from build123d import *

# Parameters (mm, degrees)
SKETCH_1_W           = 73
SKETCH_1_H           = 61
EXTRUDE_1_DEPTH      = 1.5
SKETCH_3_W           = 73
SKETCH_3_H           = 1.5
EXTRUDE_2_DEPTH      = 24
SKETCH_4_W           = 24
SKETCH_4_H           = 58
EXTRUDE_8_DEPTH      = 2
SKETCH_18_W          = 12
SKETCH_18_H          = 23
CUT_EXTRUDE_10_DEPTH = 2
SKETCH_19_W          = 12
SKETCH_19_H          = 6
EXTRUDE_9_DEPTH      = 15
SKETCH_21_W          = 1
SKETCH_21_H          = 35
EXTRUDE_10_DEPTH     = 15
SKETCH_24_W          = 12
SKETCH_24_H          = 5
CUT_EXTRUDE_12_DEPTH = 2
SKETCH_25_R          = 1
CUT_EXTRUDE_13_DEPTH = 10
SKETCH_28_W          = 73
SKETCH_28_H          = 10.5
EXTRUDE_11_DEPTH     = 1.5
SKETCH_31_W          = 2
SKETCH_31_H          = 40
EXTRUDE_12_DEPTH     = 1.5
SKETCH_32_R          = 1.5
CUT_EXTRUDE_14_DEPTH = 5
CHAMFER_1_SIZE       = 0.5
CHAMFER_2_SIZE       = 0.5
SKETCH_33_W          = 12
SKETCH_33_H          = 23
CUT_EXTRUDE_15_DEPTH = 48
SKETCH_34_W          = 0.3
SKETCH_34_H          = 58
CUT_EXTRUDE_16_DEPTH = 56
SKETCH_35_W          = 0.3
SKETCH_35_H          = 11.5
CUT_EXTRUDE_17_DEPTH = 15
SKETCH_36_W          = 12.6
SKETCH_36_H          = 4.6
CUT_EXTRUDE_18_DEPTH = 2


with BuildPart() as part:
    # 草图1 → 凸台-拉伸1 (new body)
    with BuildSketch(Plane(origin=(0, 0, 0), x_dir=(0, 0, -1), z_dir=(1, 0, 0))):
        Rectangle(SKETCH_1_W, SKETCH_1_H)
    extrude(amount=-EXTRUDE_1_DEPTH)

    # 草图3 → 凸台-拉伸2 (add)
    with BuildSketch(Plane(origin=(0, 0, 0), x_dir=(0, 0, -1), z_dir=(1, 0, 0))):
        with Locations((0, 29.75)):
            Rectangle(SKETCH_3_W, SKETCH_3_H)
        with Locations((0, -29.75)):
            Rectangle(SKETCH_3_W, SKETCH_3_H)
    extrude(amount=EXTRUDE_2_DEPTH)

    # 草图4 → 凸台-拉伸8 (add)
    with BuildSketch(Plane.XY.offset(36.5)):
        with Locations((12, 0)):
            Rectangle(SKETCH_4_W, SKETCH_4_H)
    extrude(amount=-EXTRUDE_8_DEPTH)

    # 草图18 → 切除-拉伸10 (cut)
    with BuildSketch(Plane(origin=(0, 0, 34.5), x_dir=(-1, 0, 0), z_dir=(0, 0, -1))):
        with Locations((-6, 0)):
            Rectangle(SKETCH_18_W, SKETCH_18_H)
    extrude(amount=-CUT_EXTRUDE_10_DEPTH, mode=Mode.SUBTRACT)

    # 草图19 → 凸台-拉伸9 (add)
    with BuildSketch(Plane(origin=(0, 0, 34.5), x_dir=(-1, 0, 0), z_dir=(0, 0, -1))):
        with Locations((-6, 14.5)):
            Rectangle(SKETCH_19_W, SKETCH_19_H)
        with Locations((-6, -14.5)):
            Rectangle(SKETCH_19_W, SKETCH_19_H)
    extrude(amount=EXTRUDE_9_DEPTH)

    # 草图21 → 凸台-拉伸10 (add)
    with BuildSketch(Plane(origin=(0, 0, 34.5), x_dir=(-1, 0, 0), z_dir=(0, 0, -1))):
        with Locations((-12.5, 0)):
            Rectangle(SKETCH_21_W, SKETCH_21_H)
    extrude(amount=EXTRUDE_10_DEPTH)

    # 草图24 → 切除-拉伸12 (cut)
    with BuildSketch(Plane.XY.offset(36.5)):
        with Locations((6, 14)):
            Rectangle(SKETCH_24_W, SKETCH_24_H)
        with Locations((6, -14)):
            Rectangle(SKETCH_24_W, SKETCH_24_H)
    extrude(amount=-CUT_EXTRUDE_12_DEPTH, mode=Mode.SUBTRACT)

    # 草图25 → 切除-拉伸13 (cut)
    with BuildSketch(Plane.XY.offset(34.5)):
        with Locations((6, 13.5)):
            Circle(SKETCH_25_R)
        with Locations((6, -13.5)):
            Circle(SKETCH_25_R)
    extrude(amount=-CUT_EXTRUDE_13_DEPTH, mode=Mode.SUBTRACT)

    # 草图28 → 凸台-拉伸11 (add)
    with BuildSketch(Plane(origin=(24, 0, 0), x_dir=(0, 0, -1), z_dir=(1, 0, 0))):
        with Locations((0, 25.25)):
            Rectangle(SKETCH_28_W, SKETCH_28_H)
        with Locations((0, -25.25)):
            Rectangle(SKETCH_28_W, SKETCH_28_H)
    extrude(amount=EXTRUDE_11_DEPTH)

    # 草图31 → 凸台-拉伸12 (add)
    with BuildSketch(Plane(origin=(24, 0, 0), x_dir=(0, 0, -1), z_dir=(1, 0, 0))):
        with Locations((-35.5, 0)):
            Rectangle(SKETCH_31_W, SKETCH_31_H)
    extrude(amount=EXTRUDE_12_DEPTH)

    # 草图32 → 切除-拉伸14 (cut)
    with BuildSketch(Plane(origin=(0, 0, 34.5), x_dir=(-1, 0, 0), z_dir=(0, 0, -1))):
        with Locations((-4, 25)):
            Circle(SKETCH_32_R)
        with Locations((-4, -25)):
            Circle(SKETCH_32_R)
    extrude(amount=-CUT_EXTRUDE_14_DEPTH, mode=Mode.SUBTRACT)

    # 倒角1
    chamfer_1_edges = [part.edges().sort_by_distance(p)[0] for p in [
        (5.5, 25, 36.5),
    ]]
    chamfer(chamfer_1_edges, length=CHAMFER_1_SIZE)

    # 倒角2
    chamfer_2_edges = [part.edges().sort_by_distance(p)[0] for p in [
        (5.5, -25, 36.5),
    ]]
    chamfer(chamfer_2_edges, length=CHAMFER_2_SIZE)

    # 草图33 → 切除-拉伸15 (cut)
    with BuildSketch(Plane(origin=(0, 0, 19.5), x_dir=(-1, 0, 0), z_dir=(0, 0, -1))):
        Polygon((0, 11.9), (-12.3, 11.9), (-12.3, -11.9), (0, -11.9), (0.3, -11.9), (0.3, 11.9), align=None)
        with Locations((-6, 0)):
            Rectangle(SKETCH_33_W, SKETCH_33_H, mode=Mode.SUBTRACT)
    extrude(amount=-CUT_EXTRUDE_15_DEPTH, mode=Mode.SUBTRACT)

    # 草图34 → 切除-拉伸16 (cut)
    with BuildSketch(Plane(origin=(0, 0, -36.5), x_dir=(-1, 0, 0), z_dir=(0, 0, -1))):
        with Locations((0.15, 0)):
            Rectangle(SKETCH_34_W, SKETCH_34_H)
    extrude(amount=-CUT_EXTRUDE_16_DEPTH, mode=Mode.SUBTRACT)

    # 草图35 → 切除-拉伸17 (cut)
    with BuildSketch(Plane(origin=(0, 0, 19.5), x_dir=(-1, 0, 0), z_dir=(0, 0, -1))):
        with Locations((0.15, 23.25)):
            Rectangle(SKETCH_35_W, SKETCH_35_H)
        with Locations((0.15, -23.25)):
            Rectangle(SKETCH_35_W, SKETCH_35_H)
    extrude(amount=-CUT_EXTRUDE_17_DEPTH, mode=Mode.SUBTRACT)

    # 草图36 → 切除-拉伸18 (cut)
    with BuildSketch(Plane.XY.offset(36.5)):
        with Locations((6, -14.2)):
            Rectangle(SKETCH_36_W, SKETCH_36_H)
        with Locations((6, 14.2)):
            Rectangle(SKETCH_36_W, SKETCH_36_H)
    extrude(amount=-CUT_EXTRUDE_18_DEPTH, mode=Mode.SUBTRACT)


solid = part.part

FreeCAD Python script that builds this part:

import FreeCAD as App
import Part
import Sketcher
Q = App.Units.Quantity


def edges_at(feature, points):
    """Names of the edges that pass closest to the given points."""
    edges = feature.Shape.Edges
    near = lambda p: min(range(len(edges)), key=lambda i: edges[i].distToShape(Part.Vertex(*p))[0])
    return sorted({f"Edge{near(p) + 1}" for p in points})


def add_polygon(sketch, points):
    """Adds a closed chain of lines whose ends are joined by coincident constraints."""
    first, n = sketch.GeometryCount, len(points)
    for a, b in zip(points, points[1:] + points[:1]):
        sketch.addGeometry(Part.LineSegment(App.Vector(*a, 0), App.Vector(*b, 0)), False)
    for i in range(n):
        sketch.addConstraint(Sketcher.Constraint("Coincident", first + i, 2, first + (i + 1) % n, 1))

doc = App.newDocument("Part")
body = doc.addObject("PartDesign::Body", "Body")

# Sketch on YZ plane
sketch1 = doc.addObject("Sketcher::SketchObject", "Sketch")
body.addObject(sketch1)
sketch1.AttachmentSupport = (doc.YZ_Plane, [""])
sketch1.MapMode = "FlatFace"
add_polygon(sketch1, [(30, 36), (-30, 36), (-30, -36), (30, -36)])  # lines 0-3
sketch1.addConstraint(Sketcher.Constraint("Horizontal", 0))
sketch1.addConstraint(Sketcher.Constraint("Vertical", 1))
sketch1.addConstraint(Sketcher.Constraint("Horizontal", 2))
sketch1.addConstraint(Sketcher.Constraint("Vertical", 3))
sketch1.addConstraint(Sketcher.Constraint("Symmetric", 0, 2, 2, 2, -1, 1))
sketch1.addConstraint(Sketcher.Constraint("DistanceX", 0, 2, 0, 1, Q("61 mm")))
sketch1.addConstraint(Sketcher.Constraint("DistanceY", 1, 2, 1, 1, Q("73 mm")))
pad1 = doc.addObject("PartDesign::Pad", "Pad")
body.addObject(pad1)
pad1.Profile = sketch1
pad1.Length = 1.5
pad1.Reversed = True

# Sketch on YZ plane
sketch2 = doc.addObject("Sketcher::SketchObject", "Sketch001")
body.addObject(sketch2)
sketch2.AttachmentSupport = (doc.YZ_Plane, [""])
sketch2.MapMode = "FlatFace"
add_polygon(sketch2, [(30.5, 36.5), (29, 36.5), (29, -36.5), (30.5, -36.5)])  # lines 0-3
add_polygon(sketch2, [(-29, 36.5), (-30.5, 36.5), (-30.5, -36.5), (-29, -36.5)])  # lines 4-7
sketch2.addConstraint(Sketcher.Constraint("Horizontal", 0))
sketch2.addConstraint(Sketcher.Constraint("Vertical", 1))
sketch2.addConstraint(Sketcher.Constraint("Horizontal", 2))
sketch2.addConstraint(Sketcher.Constraint("Vertical", 3))
sketch2.addConstraint(Sketcher.Constraint("Horizontal", 4))
sketch2.addConstraint(Sketcher.Constraint("Vertical", 5))
sketch2.addConstraint(Sketcher.Constraint("Horizontal", 6))
sketch2.addConstraint(Sketcher.Constraint("Vertical", 7))
sketch2.addConstraint(Sketcher.Constraint("Symmetric", 2, 2, 4, 2, -1, 1))
sketch2.addConstraint(Sketcher.Constraint("Symmetric", 0, 2, 6, 2, -1, 1))
sketch2.addConstraint(Sketcher.Constraint("Horizontal", 3, 2, 4, 2))
sketch2.addConstraint(Sketcher.Constraint("DistanceY", 1, 2, 1, 1, Q("73 mm")))
sketch2.addConstraint(Sketcher.Constraint("DistanceX", 0, 2, 0, 1, Q("1.5 mm")))
sketch2.addConstraint(Sketcher.Constraint("DistanceX", -1, 1, 0, 2, Q("29 mm")))
pad2 = doc.addObject("PartDesign::Pad", "Pad001")
body.addObject(pad2)
pad2.Profile = sketch2
pad2.Length = 24

# Sketch on XY plane
sketch3 = doc.addObject("Sketcher::SketchObject", "Sketch002")
body.addObject(sketch3)
sketch3.AttachmentSupport = (doc.XY_Plane, [""])
sketch3.MapMode = "FlatFace"
sketch3.AttachmentOffset = App.Placement(App.Vector(0, 0, 36.5), App.Rotation())
add_polygon(sketch3, [(0, 29), (0, -29), (24, -29), (24, 29)])  # lines 0-3
sketch3.addConstraint(Sketcher.Constraint("Vertical", 0))
sketch3.addConstraint(Sketcher.Constraint("Horizontal", 1))
sketch3.addConstraint(Sketcher.Constraint("Vertical", 2))
sketch3.addConstraint(Sketcher.Constraint("Horizontal", 3))
sketch3.addConstraint(Sketcher.Constraint("Symmetric", 0, 2, 3, 2, -1, 1))
sketch3.addConstraint(Sketcher.Constraint("DistanceX", 1, 1, 1, 2, Q("24 mm")))
sketch3.addConstraint(Sketcher.Constraint("DistanceY", 0, 2, 0, 1, Q("58 mm")))
pad3 = doc.addObject("PartDesign::Pad", "Pad002")
body.addObject(pad3)
pad3.Profile = sketch3
pad3.Length = 2
pad3.Reversed = True

# Sketch on XY plane
sketch4 = doc.addObject("Sketcher::SketchObject", "Sketch003")
body.addObject(sketch4)
sketch4.AttachmentSupport = (doc.XY_Plane, [""])
sketch4.MapMode = "FlatFace"
sketch4.AttachmentOffset = App.Placement(App.Vector(0, 0, 34.5), App.Rotation())
add_polygon(sketch4, [(12, 12), (12, -12), (0, -12), (0, 12)])  # lines 0-3
sketch4.addConstraint(Sketcher.Constraint("Vertical", 0))
sketch4.addConstraint(Sketcher.Constraint("Horizontal", 1))
sketch4.addConstraint(Sketcher.Constraint("Vertical", 2))
sketch4.addConstraint(Sketcher.Constraint("Horizontal", 3))
sketch4.addConstraint(Sketcher.Constraint("Symmetric", 1, 2, 2, 2, -1, 1))
sketch4.addConstraint(Sketcher.Constraint("DistanceX", 1, 2, 1, 1, Q("12 mm")))
sketch4.addConstraint(Sketcher.Constraint("DistanceY", 0, 2, 0, 1, Q("23 mm")))
pocket1 = doc.addObject("PartDesign::Pocket", "Pocket")
body.addObject(pocket1)
pocket1.Profile = sketch4
pocket1.Length = 2
pocket1.Reversed = True

# Sketch on XY plane
sketch5 = doc.addObject("Sketcher::SketchObject", "Sketch004")
body.addObject(sketch5)
sketch5.AttachmentSupport = (doc.XY_Plane, [""])
sketch5.MapMode = "FlatFace"
sketch5.AttachmentOffset = App.Placement(App.Vector(0, 0, 34.5), App.Rotation())
add_polygon(sketch5, [(12, 18), (12, 12), (0, 12), (0, 18)])  # lines 0-3
add_polygon(sketch5, [(12, -12), (12, -18), (0, -18), (0, -12)])  # lines 4-7
sketch5.addConstraint(Sketcher.Constraint("Vertical", 0))
sketch5.addConstraint(Sketcher.Constraint("Horizontal", 1))
sketch5.addConstraint(Sketcher.Constraint("Vertical", 2))
sketch5.addConstraint(Sketcher.Constraint("Horizontal", 3))
sketch5.addConstraint(Sketcher.Constraint("Vertical", 4))
sketch5.addConstraint(Sketcher.Constraint("Horizontal", 5))
sketch5.addConstraint(Sketcher.Constraint("Vertical", 6))
sketch5.addConstraint(Sketcher.Constraint("Horizontal", 7))
sketch5.addConstraint(Sketcher.Constraint("Symmetric", 2, 2, 5, 2, -1, 1))
sketch5.addConstraint(Sketcher.Constraint("Symmetric", 1, 2, 6, 2, -1))
sketch5.addConstraint(Sketcher.Constraint("Vertical", 3, 2, 4, 2))
sketch5.addConstraint(Sketcher.Constraint("DistanceX", 1, 2, 1, 1, Q("12 mm")))
sketch5.addConstraint(Sketcher.Constraint("DistanceY", 0, 2, 0, 1, Q("6 mm")))
sketch5.addConstraint(Sketcher.Constraint("DistanceY", 4, 2, 0, 2, Q("29 mm")))
pad4 = doc.addObject("PartDesign::Pad", "Pad003")
body.addObject(pad4)
pad4.Profile = sketch5
pad4.Length = 15
pad4.Reversed = True

# Sketch on XY plane
sketch6 = doc.addObject("Sketcher::SketchObject", "Sketch005")
body.addObject(sketch6)
sketch6.AttachmentSupport = (doc.XY_Plane, [""])
sketch6.MapMode = "FlatFace"
sketch6.AttachmentOffset = App.Placement(App.Vector(0, 0, 34.5), App.Rotation())
add_polygon(sketch6, [(13, 17.5), (13, -17.5), (12, -17.5), (12, 17.5)])  # lines 0-3
sketch6.addConstraint(Sketcher.Constraint("Vertical", 0))
sketch6.addConstraint(Sketcher.Constraint("Horizontal", 1))
sketch6.addConstraint(Sketcher.Constraint("Vertical", 2))
sketch6.addConstraint(Sketcher.Constraint("Horizontal", 3))
sketch6.addConstraint(Sketcher.Constraint("DistanceX", 1, 2, 1, 1, Q("1 mm")))
sketch6.addConstraint(Sketcher.Constraint("DistanceY", 0, 2, 0, 1, Q("35 mm")))
sketch6.addConstraint(Sketcher.Constraint("DistanceX", -1, 1, 0, 2, Q("13 mm")))
sketch6.addConstraint(Sketcher.Constraint("DistanceY", 0, 2, -1, 1, Q("17.5 mm")))
pad5 = doc.addObject("PartDesign::Pad", "Pad004")
body.addObject(pad5)
pad5.Profile = sketch6
pad5.Length = 15
pad5.Reversed = True

# Sketch on XY plane
sketch7 = doc.addObject("Sketcher::SketchObject", "Sketch006")
body.addObject(sketch7)
sketch7.AttachmentSupport = (doc.XY_Plane, [""])
sketch7.MapMode = "FlatFace"
sketch7.AttachmentOffset = App.Placement(App.Vector(0, 0, 36.5), App.Rotation())
add_polygon(sketch7, [(0, 16), (0, 12), (12, 12), (12, 16)])  # lines 0-3
add_polygon(sketch7, [(0, -12), (0, -16), (12, -16), (12, -12)])  # lines 4-7
sketch7.addConstraint(Sketcher.Constraint("Vertical", 0))
sketch7.addConstraint(Sketcher.Constraint("Horizontal", 1))
sketch7.addConstraint(Sketcher.Constraint("Vertical", 2))
sketch7.addConstraint(Sketcher.Constraint("Horizontal", 3))
sketch7.addConstraint(Sketcher.Constraint("Vertical", 4))
sketch7.addConstraint(Sketcher.Constraint("Horizontal", 5))
sketch7.addConstraint(Sketcher.Constraint("Vertical", 6))
sketch7.addConstraint(Sketcher.Constraint("Horizontal", 7))
sketch7.addConstraint(Sketcher.Constraint("Symmetric", 3, 2, 4, 2, -1, 1))
sketch7.addConstraint(Sketcher.Constraint("Symmetric", 1, 2, 6, 2, -1))
sketch7.addConstraint(Sketcher.Constraint("PointOnObject", 0, 2, -2))
sketch7.addConstraint(Sketcher.Constraint("DistanceX", 1, 1, 1, 2, Q("12 mm")))
sketch7.addConstraint(Sketcher.Constraint("DistanceY", 0, 2, 0, 1, Q("5 mm")))
sketch7.addConstraint(Sketcher.Constraint("DistanceY", 4, 2, 0, 2, Q("28 mm")))
pocket2 = doc.addObject("PartDesign::Pocket", "Pocket001")
body.addObject(pocket2)
pocket2.Profile = sketch7
pocket2.Length = 2

# Sketch on XY plane
sketch8 = doc.addObject("Sketcher::SketchObject", "Sketch007")
body.addObject(sketch8)
sketch8.AttachmentSupport = (doc.XY_Plane, [""])
sketch8.MapMode = "FlatFace"
sketch8.AttachmentOffset = App.Placement(App.Vector(0, 0, 34.5), App.Rotation())
sketch8.addGeometry(Part.Circle(App.Vector(6, 13.5, 0), App.Vector(0, 0, 1), 1), False)
sketch8.addGeometry(Part.Circle(App.Vector(6, -13.5, 0), App.Vector(0, 0, 1), 1), False)
sketch8.addConstraint(Sketcher.Constraint("Equal", 0, 1))
sketch8.addConstraint(Sketcher.Constraint("Symmetric", 0, 3, 1, 3, -1))
sketch8.addConstraint(Sketcher.Constraint("Diameter", 0, Q("2 mm")))
sketch8.addConstraint(Sketcher.Constraint("DistanceX", -1, 1, 0, 3, Q("6 mm")))
sketch8.addConstraint(Sketcher.Constraint("DistanceY", 1, 3, 0, 3, Q("27 mm")))
pocket3 = doc.addObject("PartDesign::Pocket", "Pocket002")
body.addObject(pocket3)
pocket3.Profile = sketch8
pocket3.Length = 10

# Sketch on YZ plane
sketch9 = doc.addObject("Sketcher::SketchObject", "Sketch008")
body.addObject(sketch9)
sketch9.AttachmentSupport = (doc.YZ_Plane, [""])
sketch9.MapMode = "FlatFace"
sketch9.AttachmentOffset = App.Placement(App.Vector(0, 0, 24), App.Rotation())
add_polygon(sketch9, [(30, 36), (20, 36), (20, -36), (30, -36)])  # lines 0-3
add_polygon(sketch9, [(-20, 36), (-30, 36), (-30, -36), (-20, -36)])  # lines 4-7
sketch9.addConstraint(Sketcher.Constraint("Horizontal", 0))
sketch9.addConstraint(Sketcher.Constraint("Vertical", 1))
sketch9.addConstraint(Sketcher.Constraint("Horizontal", 2))
sketch9.addConstraint(Sketcher.Constraint("Vertical", 3))
sketch9.addConstraint(Sketcher.Constraint("Horizontal", 4))
sketch9.addConstraint(Sketcher.Constraint("Vertical", 5))
sketch9.addConstraint(Sketcher.Constraint("Horizontal", 6))
sketch9.addConstraint(Sketcher.Constraint("Vertical", 7))
sketch9.addConstraint(Sketcher.Constraint("Symmetric", 2, 2, 4, 2, -1, 1))
sketch9.addConstraint(Sketcher.Constraint("Symmetric", 0, 2, 6, 2, -1, 1))
sketch9.addConstraint(Sketcher.Constraint("Horizontal", 3, 2, 4, 2))
sketch9.addConstraint(Sketcher.Constraint("DistanceY", 1, 2, 1, 1, Q("73 mm")))
sketch9.addConstraint(Sketcher.Constraint("DistanceX", 0, 2, 0, 1, Q("10.5 mm")))
sketch9.addConstraint(Sketcher.Constraint("DistanceX", -1, 1, 0, 2, Q("20 mm")))
pad6 = doc.addObject("PartDesign::Pad", "Pad005")
body.addObject(pad6)
pad6.Profile = sketch9
pad6.Length = 1.5

# Sketch on YZ plane
sketch10 = doc.addObject("Sketcher::SketchObject", "Sketch009")
body.addObject(sketch10)
sketch10.AttachmentSupport = (doc.YZ_Plane, [""])
sketch10.MapMode = "FlatFace"
sketch10.AttachmentOffset = App.Placement(App.Vector(0, 0, 24), App.Rotation())
add_polygon(sketch10, [(20, 36.5), (-20, 36.5), (-20, 34.5), (20, 34.5)])  # lines 0-3
sketch10.addConstraint(Sketcher.Constraint("Horizontal", 0))
sketch10.addConstraint(Sketcher.Constraint("Vertical", 1))
sketch10.addConstraint(Sketcher.Constraint("Horizontal", 2))
sketch10.addConstraint(Sketcher.Constraint("Vertical", 3))
sketch10.addConstraint(Sketcher.Constraint("DistanceX", 0, 2, 0, 1, Q("40 mm")))
sketch10.addConstraint(Sketcher.Constraint("DistanceY", 1, 2, 1, 1, Q("2 mm")))
sketch10.addConstraint(Sketcher.Constraint("DistanceX", 0, 2, -1, 1, Q("20 mm")))
sketch10.addConstraint(Sketcher.Constraint("DistanceY", -1, 1, 0, 2, Q("36.5 mm")))
pad7 = doc.addObject("PartDesign::Pad", "Pad006")
body.addObject(pad7)
pad7.Profile = sketch10
pad7.Length = 1.5

# Sketch on XY plane
sketch11 = doc.addObject("Sketcher::SketchObject", "Sketch010")
body.addObject(sketch11)
sketch11.AttachmentSupport = (doc.XY_Plane, [""])
sketch11.MapMode = "FlatFace"
sketch11.AttachmentOffset = App.Placement(App.Vector(0, 0, 34.5), App.Rotation())
sketch11.addGeometry(Part.Circle(App.Vector(4, 25, 0), App.Vector(0, 0, 1), 1.5), False)
sketch11.addGeometry(Part.Circle(App.Vector(4, -25, 0), App.Vector(0, 0, 1), 1.5), False)
sketch11.addConstraint(Sketcher.Constraint("Equal", 0, 1))
sketch11.addConstraint(Sketcher.Constraint("Symmetric", 0, 3, 1, 3, -1))
sketch11.addConstraint(Sketcher.Constraint("Diameter", 0, Q("3 mm")))
sketch11.addConstraint(Sketcher.Constraint("DistanceX", -1, 1, 0, 3, Q("4 mm")))
sketch11.addConstraint(Sketcher.Constraint("DistanceY", -1, 1, 0, 3, Q("25 mm")))
pocket4 = doc.addObject("PartDesign::Pocket", "Pocket003")
body.addObject(pocket4)
pocket4.Profile = sketch11
pocket4.Length = 5
pocket4.Reversed = True
doc.recompute()

chamfer = doc.addObject("PartDesign::Chamfer", "Chamfer")
body.addObject(chamfer)
chamfer.Base = (pocket4, edges_at(pocket4, [(5.5, 25, 36.5)]))
chamfer.Size = 0.5
doc.recompute()

chamfer2 = doc.addObject("PartDesign::Chamfer", "Chamfer001")
body.addObject(chamfer2)
chamfer2.Base = (chamfer, edges_at(chamfer, [(5.5, -25, 36.5)]))
chamfer2.Size = 0.5

# Sketch on XY plane
sketch12 = doc.addObject("Sketcher::SketchObject", "Sketch011")
body.addObject(sketch12)
sketch12.AttachmentSupport = (doc.XY_Plane, [""])
sketch12.MapMode = "FlatFace"
sketch12.AttachmentOffset = App.Placement(App.Vector(0, 0, 19.5), App.Rotation())
add_polygon(sketch12, [(12, 12), (12, -12), (0, -12), (0, 12)])  # lines 0-3
add_polygon(sketch12, [(0, -12), (12, -12), (12, 12), (0, 12)])  # lines 4-7
sketch12.addConstraint(Sketcher.Constraint("Vertical", 0))
sketch12.addConstraint(Sketcher.Constraint("Horizontal", 1))
sketch12.addConstraint(Sketcher.Constraint("Vertical", 2))
sketch12.addConstraint(Sketcher.Constraint("Horizontal", 3))
sketch12.addConstraint(Sketcher.Constraint("Horizontal", 4))
sketch12.addConstraint(Sketcher.Constraint("Vertical", 5))
sketch12.addConstraint(Sketcher.Constraint("Horizontal", 6))
sketch12.addConstraint(Sketcher.Constraint("Vertical", 7))
sketch12.addConstraint(Sketcher.Constraint("Symmetric", 6, 2, 7, 2, -1, 1))
sketch12.addConstraint(Sketcher.Constraint("DistanceX", 4, 1, 4, 2, Q("12 mm")))
sketch12.addConstraint(Sketcher.Constraint("DistanceY", 5, 1, 5, 2, Q("23 mm")))
sketch12.addConstraint(Sketcher.Constraint("DistanceX", 1, 2, 1, 1, Q("12.6 mm")))
sketch12.addConstraint(Sketcher.Constraint("DistanceY", 0, 2, 0, 1, Q("23.8 mm")))
sketch12.addConstraint(Sketcher.Constraint("DistanceX", -1, 1, 0, 2, Q("12.3 mm")))
sketch12.addConstraint(Sketcher.Constraint("DistanceY", 0, 2, -1, 1, Q("11.9 mm")))
pocket5 = doc.addObject("PartDesign::Pocket", "Pocket004")
body.addObject(pocket5)
pocket5.Profile = sketch12
pocket5.Length = 48
pocket5.Reversed = True

# Sketch on XY plane
sketch13 = doc.addObject("Sketcher::SketchObject", "Sketch012")
body.addObject(sketch13)
sketch13.AttachmentSupport = (doc.XY_Plane, [""])
sketch13.MapMode = "FlatFace"
sketch13.AttachmentOffset = App.Placement(App.Vector(0, 0, -36.5), App.Rotation())
add_polygon(sketch13, [(0, 29), (0, -29), (-0.3, -29), (-0.3, 29)])  # lines 0-3
sketch13.addConstraint(Sketcher.Constraint("Vertical", 0))
sketch13.addConstraint(Sketcher.Constraint("Horizontal", 1))
sketch13.addConstraint(Sketcher.Constraint("Vertical", 2))
sketch13.addConstraint(Sketcher.Constraint("Horizontal", 3))
sketch13.addConstraint(Sketcher.Constraint("Symmetric", 0, 2, 3, 2, -1, 1))
sketch13.addConstraint(Sketcher.Constraint("DistanceY", 0, 2, 0, 1, Q("58 mm")))
sketch13.addConstraint(Sketcher.Constraint("DistanceX", 1, 2, 1, 1, Q("0.3 mm")))
pocket6 = doc.addObject("PartDesign::Pocket", "Pocket005")
body.addObject(pocket6)
pocket6.Profile = sketch13
pocket6.Length = 56
pocket6.Reversed = True

# Sketch on XY plane
sketch14 = doc.addObject("Sketcher::SketchObject", "Sketch013")
body.addObject(sketch14)
sketch14.AttachmentSupport = (doc.XY_Plane, [""])
sketch14.MapMode = "FlatFace"
sketch14.AttachmentOffset = App.Placement(App.Vector(0, 0, 19.5), App.Rotation())
add_polygon(sketch14, [(0, 29), (0, 17.5), (-0.3, 17.5), (-0.3, 29)])  # lines 0-3
add_polygon(sketch14, [(0, -17.5), (0, -29), (-0.3, -29), (-0.3, -17.5)])  # lines 4-7
sketch14.addConstraint(Sketcher.Constraint("Vertical", 0))
sketch14.addConstraint(Sketcher.Constraint("Horizontal", 1))
sketch14.addConstraint(Sketcher.Constraint("Vertical", 2))
sketch14.addConstraint(Sketcher.Constraint("Horizontal", 3))
sketch14.addConstraint(Sketcher.Constraint("Vertical", 4))
sketch14.addConstraint(Sketcher.Constraint("Horizontal", 5))
sketch14.addConstraint(Sketcher.Constraint("Vertical", 6))
sketch14.addConstraint(Sketcher.Constraint("Horizontal", 7))
sketch14.addConstraint(Sketcher.Constraint("Symmetric", 3, 2, 4, 2, -1, 1))
sketch14.addConstraint(Sketcher.Constraint("Symmetric", 1, 2, 6, 2, -1))
sketch14.addConstraint(Sketcher.Constraint("PointOnObject", 0, 2, -2))
sketch14.addConstraint(Sketcher.Constraint("DistanceX", 1, 2, 1, 1, Q("0.3 mm")))
sketch14.addConstraint(Sketcher.Constraint("DistanceY", 0, 2, 0, 1, Q("11.5 mm")))
sketch14.addConstraint(Sketcher.Constraint("DistanceY", -1, 1, 2, 2, Q("29 mm")))
pocket7 = doc.addObject("PartDesign::Pocket", "Pocket006")
body.addObject(pocket7)
pocket7.Profile = sketch14
pocket7.Length = 15
pocket7.Reversed = True

# Sketch on XY plane
sketch15 = doc.addObject("Sketcher::SketchObject", "Sketch014")
body.addObject(sketch15)
sketch15.AttachmentSupport = (doc.XY_Plane, [""])
sketch15.MapMode = "FlatFace"
sketch15.AttachmentOffset = App.Placement(App.Vector(0, 0, 36.5), App.Rotation())
add_polygon(sketch15, [(-0.3, -11.9), (-0.3, -16.5), (12.3, -16.5), (12.3, -11.9)])  # lines 0-3
add_polygon(sketch15, [(-0.3, 16.5), (-0.3, 11.9), (12.3, 11.9), (12.3, 16.5)])  # lines 4-7
sketch15.addConstraint(Sketcher.Constraint("Vertical", 0))
sketch15.addConstraint(Sketcher.Constraint("Horizontal", 1))
sketch15.addConstraint(Sketcher.Constraint("Vertical", 2))
sketch15.addConstraint(Sketcher.Constraint("Horizontal", 3))
sketch15.addConstraint(Sketcher.Constraint("Vertical", 4))
sketch15.addConstraint(Sketcher.Constraint("Horizontal", 5))
sketch15.addConstraint(Sketcher.Constraint("Vertical", 6))
sketch15.addConstraint(Sketcher.Constraint("Horizontal", 7))
sketch15.addConstraint(Sketcher.Constraint("Symmetric", 3, 2, 4, 2, -1))
sketch15.addConstraint(Sketcher.Constraint("Symmetric", 1, 2, 6, 2, -1))
sketch15.addConstraint(Sketcher.Constraint("DistanceX", 1, 1, 1, 2, Q("12.6 mm")))
sketch15.addConstraint(Sketcher.Constraint("DistanceY", 0, 2, 0, 1, Q("4.6 mm")))
sketch15.addConstraint(Sketcher.Constraint("DistanceY", 1, 2, 6, 2, Q("33 mm")))
sketch15.addConstraint(Sketcher.Constraint("DistanceX", 0, 2, -1, 1, Q("0.3 mm")))
pocket8 = doc.addObject("PartDesign::Pocket", "Pocket007")
body.addObject(pocket8)
pocket8.Profile = sketch15
pocket8.Length = 2

doc.recompute()
